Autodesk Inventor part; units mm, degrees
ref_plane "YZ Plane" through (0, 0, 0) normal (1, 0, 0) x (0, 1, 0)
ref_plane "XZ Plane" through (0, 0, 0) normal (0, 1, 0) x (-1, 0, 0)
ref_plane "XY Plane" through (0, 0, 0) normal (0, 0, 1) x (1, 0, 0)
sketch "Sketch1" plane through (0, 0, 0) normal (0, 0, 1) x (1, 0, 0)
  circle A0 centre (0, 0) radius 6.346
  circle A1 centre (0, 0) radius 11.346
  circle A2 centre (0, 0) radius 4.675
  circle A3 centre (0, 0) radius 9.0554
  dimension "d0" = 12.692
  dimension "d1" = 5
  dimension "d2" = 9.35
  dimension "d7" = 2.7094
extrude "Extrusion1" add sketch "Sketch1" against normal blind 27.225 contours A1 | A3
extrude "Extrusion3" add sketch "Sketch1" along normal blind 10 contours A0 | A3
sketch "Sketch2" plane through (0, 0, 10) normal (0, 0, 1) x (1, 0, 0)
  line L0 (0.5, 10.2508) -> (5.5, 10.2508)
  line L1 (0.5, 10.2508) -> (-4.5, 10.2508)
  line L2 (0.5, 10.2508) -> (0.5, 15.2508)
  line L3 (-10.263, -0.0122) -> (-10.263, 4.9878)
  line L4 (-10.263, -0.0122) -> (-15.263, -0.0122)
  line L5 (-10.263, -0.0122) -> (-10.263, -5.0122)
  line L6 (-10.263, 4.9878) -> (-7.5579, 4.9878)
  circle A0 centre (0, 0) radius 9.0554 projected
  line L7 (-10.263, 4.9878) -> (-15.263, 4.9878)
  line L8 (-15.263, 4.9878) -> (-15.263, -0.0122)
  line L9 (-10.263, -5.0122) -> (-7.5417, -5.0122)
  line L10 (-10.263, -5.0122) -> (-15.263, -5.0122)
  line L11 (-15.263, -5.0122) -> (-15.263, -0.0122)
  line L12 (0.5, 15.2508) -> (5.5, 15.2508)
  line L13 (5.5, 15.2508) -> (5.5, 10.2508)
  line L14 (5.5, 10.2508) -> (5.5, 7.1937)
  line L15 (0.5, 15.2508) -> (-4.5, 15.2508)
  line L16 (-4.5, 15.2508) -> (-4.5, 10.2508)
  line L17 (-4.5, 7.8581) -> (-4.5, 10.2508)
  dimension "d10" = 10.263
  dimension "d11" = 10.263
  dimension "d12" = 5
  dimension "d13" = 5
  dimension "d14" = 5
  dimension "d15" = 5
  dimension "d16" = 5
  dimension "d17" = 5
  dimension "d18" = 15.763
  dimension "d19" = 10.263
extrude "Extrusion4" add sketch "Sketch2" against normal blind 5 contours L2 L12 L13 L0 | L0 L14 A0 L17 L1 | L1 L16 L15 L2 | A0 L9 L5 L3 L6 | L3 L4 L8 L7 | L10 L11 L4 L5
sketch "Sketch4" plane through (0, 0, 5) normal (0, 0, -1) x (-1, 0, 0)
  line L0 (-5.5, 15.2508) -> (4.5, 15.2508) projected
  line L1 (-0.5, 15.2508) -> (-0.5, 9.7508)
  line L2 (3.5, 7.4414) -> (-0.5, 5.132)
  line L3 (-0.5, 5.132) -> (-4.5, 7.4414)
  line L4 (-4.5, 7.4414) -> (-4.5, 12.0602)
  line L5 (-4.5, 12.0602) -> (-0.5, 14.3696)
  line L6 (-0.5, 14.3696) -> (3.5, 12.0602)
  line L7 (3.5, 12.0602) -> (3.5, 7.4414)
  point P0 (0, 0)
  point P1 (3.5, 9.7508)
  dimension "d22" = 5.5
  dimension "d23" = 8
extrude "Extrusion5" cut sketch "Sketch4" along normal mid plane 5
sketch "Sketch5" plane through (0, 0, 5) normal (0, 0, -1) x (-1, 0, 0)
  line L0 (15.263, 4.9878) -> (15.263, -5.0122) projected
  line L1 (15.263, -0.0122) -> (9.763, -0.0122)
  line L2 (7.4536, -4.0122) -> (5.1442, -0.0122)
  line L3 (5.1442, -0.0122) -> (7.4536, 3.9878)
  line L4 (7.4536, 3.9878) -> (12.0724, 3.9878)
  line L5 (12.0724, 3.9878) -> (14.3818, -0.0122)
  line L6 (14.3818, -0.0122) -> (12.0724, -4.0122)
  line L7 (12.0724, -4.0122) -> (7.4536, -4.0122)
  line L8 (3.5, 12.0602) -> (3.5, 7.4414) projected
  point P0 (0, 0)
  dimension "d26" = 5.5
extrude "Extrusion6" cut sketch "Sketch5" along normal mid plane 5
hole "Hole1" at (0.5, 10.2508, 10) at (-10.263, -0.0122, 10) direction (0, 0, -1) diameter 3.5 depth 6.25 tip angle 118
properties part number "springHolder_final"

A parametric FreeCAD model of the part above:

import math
import FreeCAD as App
import Part
import Sketcher
from FreeCAD import Vector
Q = App.Units.Quantity

doc = App.newDocument("Part")
body = doc.addObject("PartDesign::Body", "Body")

# Sketch on XY plane
sketch1 = body.newObject("Sketcher::SketchObject", "Sketch")
sketch1.AttachmentSupport = (doc.getObject("XY_Plane"), [""])
sketch1.MapMode = "FlatFace"
sketch1.addGeometry(Part.Circle(Vector(0, 0, 0), Vector(0, 0, 1), 11), False)
sketch1.addGeometry(Part.Circle(Vector(0, 0, 0), Vector(0, 0, 1), 6), False)
sketch1.addConstraint(Sketcher.Constraint("Coincident", 0, 3, -1, 1))
sketch1.addConstraint(Sketcher.Constraint("Coincident", 1, 3, -1, 1))
sketch1.addConstraint(Sketcher.Constraint("Diameter", 1, Q("12.692 mm")))
sketch1.addConstraint(Sketcher.Constraint("Diameter", 0, Q("22.692 mm")))
pad1 = body.newObject("PartDesign::Pad", "Pad")
pad1.Profile = sketch1
pad1.Length = 27.225
pad1.Reversed = True

# Sketch on XY plane
sketch2 = body.newObject("Sketcher::SketchObject", "Sketch001")
sketch2.AttachmentSupport = (doc.getObject("XY_Plane"), [""])
sketch2.MapMode = "FlatFace"
sketch2.addGeometry(Part.Circle(Vector(0, 0, 0), Vector(0, 0, 1), 9.1), False)
sketch2.addGeometry(Part.Circle(Vector(0, 0, 0), Vector(0, 0, 1), 4.7), False)
sketch2.addConstraint(Sketcher.Constraint("Coincident", 0, 3, -1, 1))
sketch2.addConstraint(Sketcher.Constraint("Coincident", 1, 3, -1, 1))
sketch2.addConstraint(Sketcher.Constraint("Diameter", 1, Q("9.35 mm")))
sketch2.addConstraint(Sketcher.Constraint("Diameter", 0, Q("18.1108 mm")))
pad2 = body.newObject("PartDesign::Pad", "Pad001")
pad2.Profile = sketch2
pad2.Length = 10

# Sketch on XY plane
sketch3 = body.newObject("Sketcher::SketchObject", "Sketch002")
sketch3.AttachmentSupport = (doc.getObject("XY_Plane"), [""])
sketch3.MapMode = "FlatFace"
sketch3.AttachmentOffset = App.Placement(Vector(0, 0, 10), App.Rotation())
sketch3.addGeometry(Part.LineSegment(Vector(6, 15, 0), Vector(-4, 15, 0)), False)
sketch3.addGeometry(Part.LineSegment(Vector(-4, 15, 0), Vector(-4, 8, 0)), False)
sketch3.addGeometry(Part.ArcOfCircle(Part.Circle(Vector(0, 0, 0), Vector(0, 0, 1), 9), math.radians(53), math.radians(120)), False)
sketch3.addGeometry(Part.LineSegment(Vector(6, 7, 0), Vector(6, 15, 0)), False)
sketch3.addGeometry(Part.ArcOfCircle(Part.Circle(Vector(0, 0, 0), Vector(0, 0, 1), 9), math.radians(147), math.radians(214)), False)
sketch3.addGeometry(Part.LineSegment(Vector(-8, 5, 0), Vector(-15, 5, 0)), False)
sketch3.addGeometry(Part.LineSegment(Vector(-15, 5, 0), Vector(-15, -5, 0)), False)
sketch3.addGeometry(Part.LineSegment(Vector(-15, -5, 0), Vector(-8, -5, 0)), False)
sketch3.addConstraint(Sketcher.Constraint("Coincident", 0, 2, 1, 1))
sketch3.addConstraint(Sketcher.Constraint("Coincident", 1, 2, 2, 2))
sketch3.addConstraint(Sketcher.Constraint("Coincident", 2, 1, 3, 1))
sketch3.addConstraint(Sketcher.Constraint("Coincident", 3, 2, 0, 1))
sketch3.addConstraint(Sketcher.Constraint("Coincident", 4, 1, 5, 1))
sketch3.addConstraint(Sketcher.Constraint("Coincident", 5, 2, 6, 1))
sketch3.addConstraint(Sketcher.Constraint("Coincident", 6, 2, 7, 1))
sketch3.addConstraint(Sketcher.Constraint("Coincident", 7, 2, 4, 2))
sketch3.addConstraint(Sketcher.Constraint("Horizontal", 0))
sketch3.addConstraint(Sketcher.Constraint("Vertical", 1))
sketch3.addConstraint(Sketcher.Constraint("Vertical", 3))
sketch3.addConstraint(Sketcher.Constraint("Horizontal", 5))
sketch3.addConstraint(Sketcher.Constraint("Vertical", 6))
sketch3.addConstraint(Sketcher.Constraint("Horizontal", 7))
sketch3.addConstraint(Sketcher.Constraint("Coincident", 2, 3, -1, 1))
sketch3.addConstraint(Sketcher.Constraint("Coincident", 4, 3, -1, 1))
sketch3.addConstraint(Sketcher.Constraint("Equal", 2, 4))
sketch3.addConstraint(Sketcher.Constraint("Equal", 0, 6))
sketch3.addConstraint(Sketcher.Constraint("DistanceX", 0, 2, 0, 1, Q("10 mm")))
sketch3.addConstraint(Sketcher.Constraint("DistanceY", 4, 1, 0, 2, Q("10.263 mm")))
sketch3.addConstraint(Sketcher.Constraint("DistanceX", 0, 2, -1, 1, Q("4.5 mm")))
sketch3.addConstraint(Sketcher.Constraint("Radius", 2, Q("9.0554 mm")))
sketch3.addConstraint(Sketcher.Constraint("DistanceX", 5, 2, 5, 1, Q("7.705 mm")))
sketch3.addConstraint(Sketcher.Constraint("DistanceY", 3, 1, 3, 2, Q("8.057 mm")))
pad3 = body.newObject("PartDesign::Pad", "Pad002")
pad3.Profile = sketch3
pad3.Length = 5
pad3.Reversed = True

# Sketch on XY plane
sketch4 = body.newObject("Sketcher::SketchObject", "Sketch003")
sketch4.AttachmentSupport = (doc.getObject("XY_Plane"), [""])
sketch4.MapMode = "FlatFace"
sketch4.AttachmentOffset = App.Placement(Vector(0, 0, 5), App.Rotation())
sketch4.addGeometry(Part.LineSegment(Vector(0.5, 5.1, 0), Vector(-3.5, 7.4, 0)), False)
sketch4.addGeometry(Part.LineSegment(Vector(-3.5, 7.4, 0), Vector(-3.5, 12.1, 0)), False)
sketch4.addGeometry(Part.LineSegment(Vector(-3.5, 12.1, 0), Vector(0.5, 14.4, 0)), False)
sketch4.addGeometry(Part.LineSegment(Vector(0.5, 14.4, 0), Vector(4.5, 12.1, 0)), False)
sketch4.addGeometry(Part.LineSegment(Vector(4.5, 12.1, 0), Vector(4.5, 7.4, 0)), False)
sketch4.addGeometry(Part.LineSegment(Vector(4.5, 7.4, 0), Vector(0.5, 5.1, 0)), False)
sketch4.addConstraint(Sketcher.Constraint("Coincident", 0, 2, 1, 1))
sketch4.addConstraint(Sketcher.Constraint("Coincident", 1, 2, 2, 1))
sketch4.addConstraint(Sketcher.Constraint("Coincident", 2, 2, 3, 1))
sketch4.addConstraint(Sketcher.Constraint("Coincident", 3, 2, 4, 1))
sketch4.addConstraint(Sketcher.Constraint("Coincident", 4, 2, 5, 1))
sketch4.addConstraint(Sketcher.Constraint("Coincident", 5, 2, 0, 1))
sketch4.addConstraint(Sketcher.Constraint("Vertical", 1))
sketch4.addConstraint(Sketcher.Constraint("Vertical", 4))
sketch4.addConstraint(Sketcher.Constraint("Parallel", 0, 3))
sketch4.addConstraint(Sketcher.Constraint("Parallel", 2, 5))
sketch4.addConstraint(Sketcher.Constraint("Horizontal", 1, 2, 3, 2))
sketch4.addConstraint(Sketcher.Constraint("Horizontal", 0, 2, 4, 2))
sketch4.addConstraint(Sketcher.Constraint("Vertical", 2, 2, 5, 2))
sketch4.addConstraint(Sketcher.Constraint("DistanceX", 1, 2, 3, 2, Q("8 mm")))
sketch4.addConstraint(Sketcher.Constraint("Angle", 0, Q("150 deg")))
sketch4.addConstraint(Sketcher.Constraint("DistanceX", 0, 2, -1, 1, Q("3.5 mm")))
sketch4.addConstraint(Sketcher.Constraint("DistanceY", 1, 1, 1, 2, Q("4.6188 mm")))
sketch4.addConstraint(Sketcher.Constraint("DistanceY", -1, 1, 5, 2, Q("5.132 mm")))
pocket1 = body.newObject("PartDesign::Pocket", "Pocket")
pocket1.Profile = sketch4
pocket1.Length = 5
pocket1.Midplane = True

# Sketch on XY plane
sketch5 = body.newObject("Sketcher::SketchObject", "Sketch004")
sketch5.AttachmentSupport = (doc.getObject("XY_Plane"), [""])
sketch5.MapMode = "FlatFace"
sketch5.AttachmentOffset = App.Placement(Vector(0, 0, 5), App.Rotation())
sketch5.addGeometry(Part.LineSegment(Vector(-5.1, 0, 0), Vector(-7.5, -4, 0)), False)
sketch5.addGeometry(Part.LineSegment(Vector(-7.5, -4, 0), Vector(-12.1, -4, 0)), False)
sketch5.addGeometry(Part.LineSegment(Vector(-12.1, -4, 0), Vector(-14.4, 0, 0)), False)
sketch5.addGeometry(Part.LineSegment(Vector(-14.4, 0, 0), Vector(-12.1, 4, 0)), False)
sketch5.addGeometry(Part.LineSegment(Vector(-12.1, 4, 0), Vector(-7.5, 4, 0)), False)
sketch5.addGeometry(Part.LineSegment(Vector(-7.5, 4, 0), Vector(-5.1, 0, 0)), False)
sketch5.addConstraint(Sketcher.Constraint("Coincident", 0, 2, 1, 1))
sketch5.addConstraint(Sketcher.Constraint("Coincident", 1, 2, 2, 1))
sketch5.addConstraint(Sketcher.Constraint("Coincident", 2, 2, 3, 1))
sketch5.addConstraint(Sketcher.Constraint("Coincident", 3, 2, 4, 1))
sketch5.addConstraint(Sketcher.Constraint("Coincident", 4, 2, 5, 1))
sketch5.addConstraint(Sketcher.Constraint("Coincident", 5, 2, 0, 1))
sketch5.addConstraint(Sketcher.Constraint("Horizontal", 1))
sketch5.addConstraint(Sketcher.Constraint("Horizontal", 4))
sketch5.addConstraint(Sketcher.Constraint("Parallel", 0, 3))
sketch5.addConstraint(Sketcher.Constraint("Parallel", 2, 5))
sketch5.addConstraint(Sketcher.Constraint("Horizontal", 2, 2, 5, 2))
sketch5.addConstraint(Sketcher.Constraint("Vertical", 1, 2, 3, 2))
sketch5.addConstraint(Sketcher.Constraint("Vertical", 0, 2, 4, 2))
sketch5.addConstraint(Sketcher.Constraint("Angle", 0, Q("-120 deg")))
sketch5.addConstraint(Sketcher.Constraint("DistanceY", 1, 2, 2, 2, Q("4 mm")))
sketch5.addConstraint(Sketcher.Constraint("DistanceX", 1, 2, 1, 1, Q("4.6188 mm")))
sketch5.addConstraint(Sketcher.Constraint("DistanceX", 0, 2, -1, 1, Q("7.4536 mm")))
sketch5.addConstraint(Sketcher.Constraint("DistanceY", 0, 2, -1, 1, Q("4.0122 mm")))
pocket2 = body.newObject("PartDesign::Pocket", "Pocket001")
pocket2.Profile = sketch5
pocket2.Length = 5
pocket2.Midplane = True

# Sketch on XY plane
sketch6 = body.newObject("Sketcher::SketchObject", "Sketch005")
sketch6.AttachmentSupport = (doc.getObject("XY_Plane"), [""])
sketch6.MapMode = "FlatFace"
sketch6.AttachmentOffset = App.Placement(Vector(0, 0, 10), App.Rotation())
sketch6.addGeometry(Part.Circle(Vector(0.5, 10.3, 0), Vector(0, 0, 1), 1.8), False)
sketch6.addGeometry(Part.Circle(Vector(-10.3, 0, 0), Vector(0, 0, 1), 1.8), False)
sketch6.addConstraint(Sketcher.Constraint("Equal", 0, 1))
sketch6.addConstraint(Sketcher.Constraint("Diameter", 0, Q("3.5 mm")))
sketch6.addConstraint(Sketcher.Constraint("DistanceX", -1, 1, 0, 3, Q("0.5 mm")))
sketch6.addConstraint(Sketcher.Constraint("DistanceX", 1, 3, -1, 1, Q("10.263 mm")))
sketch6.addConstraint(Sketcher.Constraint("DistanceY", 1, 3, 0, 3, Q("10.263 mm")))
sketch6.addConstraint(Sketcher.Constraint("DistanceY", -1, 1, 0, 3, Q("10.2508 mm")))
doc.recompute()
hole = body.newObject("PartDesign::Hole", "Hole")
hole.Profile = sketch6
hole.ThreadType = "None"
hole.Diameter = 3.5
hole.DepthType = "Dimension"
hole.Depth = 6.25
hole.DrillPoint = "Angled"
hole.DrillPointAngle = 118

doc.recompute()
